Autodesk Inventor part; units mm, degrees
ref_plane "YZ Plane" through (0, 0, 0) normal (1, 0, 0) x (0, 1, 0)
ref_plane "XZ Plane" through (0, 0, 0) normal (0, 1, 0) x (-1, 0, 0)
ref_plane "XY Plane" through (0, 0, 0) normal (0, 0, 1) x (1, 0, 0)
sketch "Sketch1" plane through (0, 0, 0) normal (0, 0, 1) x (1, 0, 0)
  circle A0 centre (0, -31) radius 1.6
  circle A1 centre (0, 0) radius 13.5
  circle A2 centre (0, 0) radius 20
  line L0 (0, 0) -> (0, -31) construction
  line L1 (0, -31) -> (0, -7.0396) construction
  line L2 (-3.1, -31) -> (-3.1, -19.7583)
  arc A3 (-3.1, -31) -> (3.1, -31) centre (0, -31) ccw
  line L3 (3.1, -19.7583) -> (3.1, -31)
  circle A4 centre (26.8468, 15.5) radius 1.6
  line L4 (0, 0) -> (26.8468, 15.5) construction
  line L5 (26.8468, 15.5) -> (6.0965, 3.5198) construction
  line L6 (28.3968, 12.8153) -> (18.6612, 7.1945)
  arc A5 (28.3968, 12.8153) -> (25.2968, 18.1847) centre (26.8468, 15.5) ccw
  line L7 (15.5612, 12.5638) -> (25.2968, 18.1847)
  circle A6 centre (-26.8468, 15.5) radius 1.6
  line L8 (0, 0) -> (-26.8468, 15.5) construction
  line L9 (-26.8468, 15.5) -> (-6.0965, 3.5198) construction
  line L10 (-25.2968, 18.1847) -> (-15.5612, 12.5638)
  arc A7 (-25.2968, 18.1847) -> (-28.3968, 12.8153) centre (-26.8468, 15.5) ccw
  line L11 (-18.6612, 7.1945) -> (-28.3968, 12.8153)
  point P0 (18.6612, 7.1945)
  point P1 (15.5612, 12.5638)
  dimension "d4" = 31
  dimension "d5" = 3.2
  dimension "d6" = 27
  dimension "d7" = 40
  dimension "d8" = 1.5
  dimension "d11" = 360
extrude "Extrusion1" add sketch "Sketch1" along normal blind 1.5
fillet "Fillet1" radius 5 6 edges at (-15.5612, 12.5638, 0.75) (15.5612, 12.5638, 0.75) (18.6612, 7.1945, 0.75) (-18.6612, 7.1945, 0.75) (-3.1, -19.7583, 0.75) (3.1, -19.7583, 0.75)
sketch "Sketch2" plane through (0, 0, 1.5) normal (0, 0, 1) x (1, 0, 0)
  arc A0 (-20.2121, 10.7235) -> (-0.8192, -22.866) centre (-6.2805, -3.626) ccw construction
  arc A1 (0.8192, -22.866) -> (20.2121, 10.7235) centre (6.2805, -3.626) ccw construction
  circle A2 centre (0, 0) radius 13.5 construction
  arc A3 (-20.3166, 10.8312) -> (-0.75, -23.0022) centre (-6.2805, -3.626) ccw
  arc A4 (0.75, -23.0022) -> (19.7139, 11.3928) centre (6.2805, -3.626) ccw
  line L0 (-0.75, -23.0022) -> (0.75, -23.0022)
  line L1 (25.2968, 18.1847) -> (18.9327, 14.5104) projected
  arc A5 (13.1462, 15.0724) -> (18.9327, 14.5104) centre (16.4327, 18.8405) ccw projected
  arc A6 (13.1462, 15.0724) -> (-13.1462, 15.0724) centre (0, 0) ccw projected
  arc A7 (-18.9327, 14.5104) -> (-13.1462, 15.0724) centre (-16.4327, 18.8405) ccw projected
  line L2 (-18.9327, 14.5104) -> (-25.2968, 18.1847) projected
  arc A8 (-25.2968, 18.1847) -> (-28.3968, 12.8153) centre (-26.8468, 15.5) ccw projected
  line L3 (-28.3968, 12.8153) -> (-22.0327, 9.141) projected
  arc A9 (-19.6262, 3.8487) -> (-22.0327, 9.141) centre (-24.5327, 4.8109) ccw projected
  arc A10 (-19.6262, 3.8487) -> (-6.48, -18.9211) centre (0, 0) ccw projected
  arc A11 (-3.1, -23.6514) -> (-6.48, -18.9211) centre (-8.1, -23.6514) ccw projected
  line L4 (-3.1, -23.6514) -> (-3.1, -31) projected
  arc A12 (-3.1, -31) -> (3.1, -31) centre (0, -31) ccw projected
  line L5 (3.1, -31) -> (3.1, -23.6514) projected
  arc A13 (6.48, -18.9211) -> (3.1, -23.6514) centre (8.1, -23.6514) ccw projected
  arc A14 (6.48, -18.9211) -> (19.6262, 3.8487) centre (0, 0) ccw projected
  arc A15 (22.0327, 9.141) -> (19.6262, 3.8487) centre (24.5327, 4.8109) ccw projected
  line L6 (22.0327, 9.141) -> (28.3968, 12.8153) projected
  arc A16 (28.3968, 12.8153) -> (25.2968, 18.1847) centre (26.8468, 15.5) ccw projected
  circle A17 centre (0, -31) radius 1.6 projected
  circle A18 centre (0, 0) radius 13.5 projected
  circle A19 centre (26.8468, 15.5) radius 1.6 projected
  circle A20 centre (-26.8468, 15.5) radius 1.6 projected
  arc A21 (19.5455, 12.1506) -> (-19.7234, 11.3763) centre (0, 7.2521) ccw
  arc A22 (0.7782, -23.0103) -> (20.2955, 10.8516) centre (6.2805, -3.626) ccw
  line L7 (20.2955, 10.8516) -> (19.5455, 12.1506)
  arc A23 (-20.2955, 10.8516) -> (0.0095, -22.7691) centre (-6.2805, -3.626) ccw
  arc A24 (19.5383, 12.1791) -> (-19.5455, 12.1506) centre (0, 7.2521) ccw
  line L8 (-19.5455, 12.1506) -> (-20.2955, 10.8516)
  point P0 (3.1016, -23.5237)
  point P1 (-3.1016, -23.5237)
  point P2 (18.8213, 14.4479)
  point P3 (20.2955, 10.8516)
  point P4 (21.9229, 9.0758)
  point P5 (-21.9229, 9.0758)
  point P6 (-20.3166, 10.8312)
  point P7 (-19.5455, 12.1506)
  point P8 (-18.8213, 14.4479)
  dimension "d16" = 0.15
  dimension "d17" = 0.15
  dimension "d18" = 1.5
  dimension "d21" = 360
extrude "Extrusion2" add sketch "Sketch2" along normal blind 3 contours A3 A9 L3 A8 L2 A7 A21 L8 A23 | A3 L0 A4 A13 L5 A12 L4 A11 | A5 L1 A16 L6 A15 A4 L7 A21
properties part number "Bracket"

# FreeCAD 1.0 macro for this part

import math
import FreeCAD as App
import Part
import Sketcher

V = App.Vector
Q = App.Units.Quantity


def edges_at(feature, points):
    """Names of the edges that pass closest to the given points."""
    edges = feature.Shape.Edges
    near = lambda p: min(range(len(edges)), key=lambda i: edges[i].distToShape(Part.Vertex(*p))[0])
    return sorted({f"Edge{near(p) + 1}" for p in points})

doc = App.newDocument("Part")
body = doc.addObject("PartDesign::Body", "Body")

# Sketch on XY plane
sketch1 = doc.addObject("Sketcher::SketchObject", "Sketch")
body.addObject(sketch1)
sketch1.AttachmentSupport = (doc.XY_Plane, [""])
sketch1.MapMode = "FlatFace"
sketch1.addGeometry([
    Part.ArcOfCircle(Part.Circle(V(0, 0, 0), V(0, 0, 1), 20), math.radians(-81), math.radians(21)),  # 0
    Part.LineSegment(V(18.7, 7.2, 0), V(28.4, 12.8, 0)),  # 1
    Part.ArcOfCircle(Part.Circle(V(26.8, 15.5, 0), V(0, 0, 1), 3.1), math.radians(-60), math.radians(120)),  # 2
    Part.LineSegment(V(25.3, 18.2, 0), V(15.6, 12.6, 0)),  # 3
    Part.ArcOfCircle(Part.Circle(V(0, 0, 0), V(0, 0, 1), 20), math.radians(39), math.radians(141)),  # 4
    Part.LineSegment(V(-15.6, 12.6, 0), V(-25.3, 18.2, 0)),  # 5
    Part.ArcOfCircle(Part.Circle(V(-26.8, 15.5, 0), V(0, 0, 1), 3.1), math.radians(60), math.radians(240)),  # 6
    Part.LineSegment(V(-28.4, 12.8, 0), V(-18.7, 7.2, 0)),  # 7
    Part.ArcOfCircle(Part.Circle(V(0, 0, 0), V(0, 0, 1), 20), math.radians(159), math.radians(261)),  # 8
    Part.LineSegment(V(-3.1, -19.8, 0), V(-3.1, -31, 0)),  # 9
    Part.ArcOfCircle(Part.Circle(V(0, -31, 0), V(0, 0, 1), 3.1), math.radians(180), math.radians(360)),  # 10
    Part.LineSegment(V(3.1, -31, 0), V(3.1, -19.8, 0)),  # 11
    Part.Circle(V(0, 0, 0), V(0, 0, 1), 13.5),  # 12
    Part.Circle(V(0, -31, 0), V(0, 0, 1), 1.6),  # 13
    Part.Circle(V(-26.8, 15.5, 0), V(0, 0, 1), 1.6),  # 14
    Part.Circle(V(26.8, 15.5, 0), V(0, 0, 1), 1.6),  # 15
], False)
sketch1.addConstraint([
    Sketcher.Constraint("Coincident", 0, 2, 1, 1),
    Sketcher.Constraint("Tangent", 1, 2, 2, 1),
    Sketcher.Constraint("Tangent", 2, 2, 3, 1),
    Sketcher.Constraint("Coincident", 3, 2, 4, 1),
    Sketcher.Constraint("Coincident", 4, 2, 5, 1),
    Sketcher.Constraint("Tangent", 5, 2, 6, 1),
    Sketcher.Constraint("Tangent", 6, 2, 7, 1),
    Sketcher.Constraint("Coincident", 7, 2, 8, 1),
    Sketcher.Constraint("Coincident", 8, 2, 9, 1),
    Sketcher.Constraint("Tangent", 9, 2, 10, 1),
    Sketcher.Constraint("Tangent", 10, 2, 11, 1),
    Sketcher.Constraint("Coincident", 11, 2, 0, 1),
    Sketcher.Constraint("Vertical", 9),
    Sketcher.Constraint("Vertical", 11),
    Sketcher.Constraint("Coincident", 0, 3, -1, 1),
    Sketcher.Constraint("Coincident", 4, 3, -1, 1),
    Sketcher.Constraint("Coincident", 8, 3, -1, 1),
    Sketcher.Constraint("Coincident", 12, 3, -1, 1),
    Sketcher.Constraint("Coincident", 13, 3, 10, 3),
    Sketcher.Constraint("Coincident", 14, 3, 6, 3),
    Sketcher.Constraint("Coincident", 15, 3, 2, 3),
    Sketcher.Constraint("Equal", 0, 4),
    Sketcher.Constraint("Equal", 2, 6),
    Sketcher.Constraint("Equal", 4, 8),
    Sketcher.Constraint("Equal", 6, 10),
    Sketcher.Constraint("Equal", 13, 14),
    Sketcher.Constraint("Equal", 14, 15),
    Sketcher.Constraint("Symmetric", 2, 3, 6, 3, -2),
    Sketcher.Constraint("PointOnObject", 10, 3, -2),
    Sketcher.Constraint("Parallel", 1, 3),
    Sketcher.Constraint("Parallel", 5, 7),
    Sketcher.Constraint("Horizontal", 3, 2, 4, 2),
    Sketcher.Constraint("Equal", 1, 3),
    Sketcher.Constraint("Diameter", 12, 27.0),
    Sketcher.Constraint("Radius", 0, 20.0),
    Sketcher.Constraint("Diameter", 13, 3.2),
    Sketcher.Constraint("DistanceY", 10, 3, -1, 1, 31.0),
    Sketcher.Constraint("Radius", 2, 3.1),
    Sketcher.Constraint("Angle", 1, Q("29.9998 deg")),
    Sketcher.Constraint("DistanceY", -1, 1, 2, 3, 15.5),
])
pad1 = doc.addObject("PartDesign::Pad", "Pad")
body.addObject(pad1)
pad1.Profile = sketch1
pad1.Length = 1.5
doc.recompute()

fillet = doc.addObject("PartDesign::Fillet", "Fillet")
body.addObject(fillet)
fillet.Base = (pad1, edges_at(pad1, [
    (-15.561, 12.564, 0.75),
    (15.561, 12.564, 0.75),
    (18.661, 7.194, 0.75),
    (-18.661, 7.194, 0.75),
    (-3.1, -19.758, 0.75),
    (3.1, -19.758, 0.75),
]))
fillet.Radius = 5

# Sketch on XY plane
sketch2 = doc.addObject("Sketcher::SketchObject", "Sketch001")
body.addObject(sketch2)
sketch2.AttachmentSupport = (doc.XY_Plane, [""])
sketch2.MapMode = "FlatFace"
sketch2.AttachmentOffset = App.Placement(V(0, 0, 1.5), App.Rotation())
sketch2.addGeometry([
    Part.ArcOfCircle(Part.Circle(V(-6.28, -3.626, 0), V(0, 0, 1), 20.15), math.radians(134.15), math.radians(140.92)),  # 0
    Part.ArcOfCircle(Part.Circle(V(-6.28, -3.626, 0), V(0, 0, 1), 20.15), math.radians(134.07), math.radians(134.15)),  # 1
    Part.LineSegment(V(-20.296, 10.852, 0), V(-19.546, 12.151, 0)),  # 2
    Part.ArcOfCircle(Part.Circle(V(0, 7.252, 0), V(0, 0, 1), 20.15), math.radians(159.08), math.radians(165.93)),  # 3
    Part.ArcOfCircle(Part.Circle(V(-16.433, 18.84, 0), V(0, 0, 1), 5), math.radians(-120), math.radians(-118.54)),  # 4
    Part.LineSegment(V(-18.933, 14.51, 0), V(-25.297, 18.185, 0)),  # 5
    Part.ArcOfCircle(Part.Circle(V(-26.847, 15.5, 0), V(0, 0, 1), 3.1), math.radians(60), math.radians(240)),  # 6
    Part.LineSegment(V(-28.397, 12.815, 0), V(-22.033, 9.141, 0)),  # 7
    Part.ArcOfCircle(Part.Circle(V(-24.533, 4.811, 0), V(0, 0, 1), 5), math.radians(58.54), math.radians(60)),  # 8
    Part.Circle(V(-26.847, 15.5, 0), V(0, 0, 1), 1.6),  # 9
    Part.ArcOfCircle(Part.Circle(V(-6.28, -3.626, 0), V(0, 0, 1), 20.15), math.radians(-80.92), math.radians(-74.07)),  # 10
    Part.ArcOfCircle(Part.Circle(V(-8.1, -23.651, 0), V(0, 0, 1), 5), math.radians(0), math.radians(1.46)),  # 11
    Part.LineSegment(V(-3.1, -23.651, 0), V(-3.1, -31, 0)),  # 12
    Part.ArcOfCircle(Part.Circle(V(0, -31, 0), V(0, 0, 1), 3.1), math.radians(180), math.radians(360)),  # 13
    Part.LineSegment(V(3.1, -31, 0), V(3.1, -23.651, 0)),  # 14
    Part.ArcOfCircle(Part.Circle(V(8.1, -23.651, 0), V(0, 0, 1), 5), math.radians(178.54), math.radians(180)),  # 15
    Part.ArcOfCircle(Part.Circle(V(6.28, -3.626, 0), V(0, 0, 1), 20.15), math.radians(-105.93), math.radians(-99.08)),  # 16
    Part.LineSegment(V(0.75, -23.002, 0), V(-0.75, -23.002, 0)),  # 17
    Part.Circle(V(0, -31, 0), V(0, 0, 1), 1.6),  # 18
    Part.ArcOfCircle(Part.Circle(V(16.433, 18.84, 0), V(0, 0, 1), 5), math.radians(-61.46), math.radians(-60)),  # 19
    Part.ArcOfCircle(Part.Circle(V(0, 7.252, 0), V(0, 0, 1), 20.15), math.radians(14.07), math.radians(20.92)),  # 20
    Part.LineSegment(V(19.546, 12.151, 0), V(20.296, 10.852, 0)),  # 21
    Part.ArcOfCircle(Part.Circle(V(6.28, -3.626, 0), V(0, 0, 1), 20.15), math.radians(39.08), math.radians(45.93)),  # 22
    Part.ArcOfCircle(Part.Circle(V(24.533, 4.811, 0), V(0, 0, 1), 5), math.radians(120), math.radians(121.46)),  # 23
    Part.LineSegment(V(22.033, 9.141, 0), V(28.397, 12.815, 0)),  # 24
    Part.ArcOfCircle(Part.Circle(V(26.847, 15.5, 0), V(0, 0, 1), 3.1), math.radians(-60), math.radians(120)),  # 25
    Part.LineSegment(V(25.297, 18.185, 0), V(18.933, 14.51, 0)),  # 26
    Part.Circle(V(26.847, 15.5, 0), V(0, 0, 1), 1.6),  # 27
], False)
sketch2.addConstraint([
    Sketcher.Constraint("Tangent", 0, 1, 1, 2),
    Sketcher.Constraint("Coincident", 1, 1, 2, 1),
    Sketcher.Constraint("Coincident", 2, 2, 3, 2),
    Sketcher.Constraint("Coincident", 3, 1, 4, 2),
    Sketcher.Constraint("Tangent", 4, 1, 5, 1),
    Sketcher.Constraint("Tangent", 5, 2, 6, 1),
    Sketcher.Constraint("Tangent", 6, 2, 7, 1),
    Sketcher.Constraint("Tangent", 7, 2, 8, 2),
    Sketcher.Constraint("Coincident", 8, 1, 0, 2),
    Sketcher.Constraint("Coincident", 10, 1, 11, 2),
    Sketcher.Constraint("Tangent", 11, 1, 12, 1),
    Sketcher.Constraint("Tangent", 12, 2, 13, 1),
    Sketcher.Constraint("Tangent", 13, 2, 14, 1),
    Sketcher.Constraint("Tangent", 14, 2, 15, 2),
    Sketcher.Constraint("Coincident", 15, 1, 16, 2),
    Sketcher.Constraint("Coincident", 16, 1, 17, 1),
    Sketcher.Constraint("Coincident", 17, 2, 10, 2),
    Sketcher.Constraint("Coincident", 19, 1, 20, 2),
    Sketcher.Constraint("Coincident", 20, 1, 21, 1),
    Sketcher.Constraint("Coincident", 21, 2, 22, 2),
    Sketcher.Constraint("Coincident", 22, 1, 23, 2),
    Sketcher.Constraint("Tangent", 23, 1, 24, 1),
    Sketcher.Constraint("Tangent", 24, 2, 25, 1),
    Sketcher.Constraint("Tangent", 25, 2, 26, 1),
    Sketcher.Constraint("Tangent", 26, 2, 19, 2),
    Sketcher.Constraint("Vertical", 12),
    Sketcher.Constraint("Vertical", 14),
    Sketcher.Constraint("Horizontal", 17),
    Sketcher.Constraint("Coincident", 9, 3, 6, 3),
    Sketcher.Constraint("Coincident", 10, 3, 0, 3),
    Sketcher.Constraint("Coincident", 18, 3, 13, 3),
    Sketcher.Constraint("Coincident", 20, 3, 3, 3),
    Sketcher.Constraint("Coincident", 22, 3, 16, 3),
    Sketcher.Constraint("Coincident", 27, 3, 25, 3),
    Sketcher.Constraint("Equal", 0, 1),
    Sketcher.Constraint("Equal", 1, 3),
    Sketcher.Constraint("Equal", 4, 8),
    Sketcher.Constraint("Equal", 3, 10),
    Sketcher.Constraint("Equal", 8, 11),
    Sketcher.Constraint("Equal", 6, 13),
    Sketcher.Constraint("Equal", 11, 15),
    Sketcher.Constraint("Equal", 10, 16),
    Sketcher.Constraint("Equal", 9, 18),
    Sketcher.Constraint("Equal", 15, 19),
    Sketcher.Constraint("Equal", 16, 20),
    Sketcher.Constraint("Equal", 20, 22),
    Sketcher.Constraint("Equal", 19, 23),
    Sketcher.Constraint("Equal", 13, 25),
    Sketcher.Constraint("Equal", 18, 27),
    Sketcher.Constraint("Symmetric", 11, 3, 15, 3, -2),
    Sketcher.Constraint("Symmetric", 0, 3, 16, 3, -2),
    Sketcher.Constraint("Symmetric", 4, 3, 19, 3, -2),
    Sketcher.Constraint("Symmetric", 8, 3, 23, 3, -2),
    Sketcher.Constraint("Symmetric", 6, 3, 25, 3, -2),
    Sketcher.Constraint("Symmetric", 2, 2, 20, 1, -2),
    Sketcher.Constraint("Perpendicular", 2, 5),
    Sketcher.Constraint("Parallel", 5, 7),
    Sketcher.Constraint("Perpendicular", 21, 24),
    Sketcher.Constraint("Equal", 5, 7),
    Sketcher.Constraint("DistanceX", 17, 2, 17, 1, 1.5),
    Sketcher.Constraint("Radius", 4, 5.0),
    Sketcher.Constraint("Distance", 2, 1.5),
    Sketcher.Constraint("Diameter", 9, 3.2),
    Sketcher.Constraint("Radius", 6, 3.1),
    Sketcher.Constraint("Angle", 2, Q("59.9993 deg")),
    Sketcher.Constraint("Radius", 0, 20.15),
    Sketcher.Constraint("DistanceY", 13, 3, -1, 1, 31.0),
    Sketcher.Constraint("DistanceY", -1, 1, 6, 3, 15.5),
    Sketcher.Constraint("DistanceY", 2, 2, 4, 3, 6.69),
    Sketcher.Constraint("DistanceY", 12, 2, 12, 1, 7.3486),
    Sketcher.Constraint("DistanceY", 0, 3, -1, 1, 3.626),
    Sketcher.Constraint("DistanceY", -1, 1, 3, 3, 7.252),
    Sketcher.Constraint("DistanceY", -1, 1, 8, 3, 4.811),
    Sketcher.Constraint("DistanceY", -1, 1, 3, 1, 14.448),
    Sketcher.Constraint("DistanceX", 8, 3, 0, 1, 4.216),
])
pad2 = doc.addObject("PartDesign::Pad", "Pad001")
body.addObject(pad2)
pad2.Profile = sketch2
pad2.Length = 3

doc.recompute()
